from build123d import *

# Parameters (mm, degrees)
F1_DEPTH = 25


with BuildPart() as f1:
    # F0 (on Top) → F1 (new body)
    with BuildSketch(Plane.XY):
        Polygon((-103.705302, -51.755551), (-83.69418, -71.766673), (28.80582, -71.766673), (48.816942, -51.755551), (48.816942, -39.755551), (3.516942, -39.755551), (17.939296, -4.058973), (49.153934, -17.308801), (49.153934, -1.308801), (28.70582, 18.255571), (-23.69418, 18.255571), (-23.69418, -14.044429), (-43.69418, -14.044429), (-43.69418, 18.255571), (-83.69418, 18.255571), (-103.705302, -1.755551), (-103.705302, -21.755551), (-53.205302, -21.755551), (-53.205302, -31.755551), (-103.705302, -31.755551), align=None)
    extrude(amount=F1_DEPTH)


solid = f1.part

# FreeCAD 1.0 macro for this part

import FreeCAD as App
import Part
import Sketcher
Q = App.Units.Quantity


def add_polygon(sketch, points):
    """Adds a closed chain of lines whose ends are joined by coincident constraints."""
    first, n = sketch.GeometryCount, len(points)
    for a, b in zip(points, points[1:] + points[:1]):
        sketch.addGeometry(Part.LineSegment(App.Vector(*a, 0), App.Vector(*b, 0)), False)
    for i in range(n):
        sketch.addConstraint(Sketcher.Constraint("Coincident", first + i, 2, first + (i + 1) % n, 1))

doc = App.newDocument("Part")
params = doc.addObject("Spreadsheet::Sheet", "Params")
for row, (alias, value) in enumerate([
    ("sketch1_width", "20 mm"),
    ("sketch1_width2", "40 mm"),
    ("sketch1_height", "12 mm"),
    ("sketch1_height2", "16 mm"),
    ("sketch1_height3", "10 mm"),
    ("pad1_length", "25 mm"),
], start=1):
    params.set(f"A{row}", alias)
    params.set(f"B{row}", "=" + value)
    params.setAlias(f"B{row}", alias)

body = doc.addObject("PartDesign::Body", "Body")

# Sketch on XY plane
sketch1 = body.newObject("Sketcher::SketchObject", "Sketch")
sketch1.AttachmentSupport = (doc.getObject("XY_Plane"), [""])
sketch1.MapMode = "FlatFace"
add_polygon(sketch1, [(-104, -52), (-84, -72), (29, -72), (49, -52), (49, -40), (4, -40), (18, -4), (49, -17), (49, -1), (29, 18), (-24, 18), (-24, -14), (-44, -14), (-44, 18), (-84, 18), (-104, -2), (-104, -22), (-53, -22), (-53, -32), (-104, -32)])  # lines 0-19
sketch1.addConstraint([
    Sketcher.Constraint("Horizontal", 1),
    Sketcher.Constraint("Vertical", 3),
    Sketcher.Constraint("Horizontal", 4),
    Sketcher.Constraint("Vertical", 7),
    Sketcher.Constraint("Horizontal", 9),
    Sketcher.Constraint("Vertical", 10),
    Sketcher.Constraint("Horizontal", 11),
    Sketcher.Constraint("Vertical", 12),
    Sketcher.Constraint("Horizontal", 13),
    Sketcher.Constraint("Vertical", 15),
    Sketcher.Constraint("Horizontal", 16),
    Sketcher.Constraint("Vertical", 17),
    Sketcher.Constraint("Horizontal", 18),
    Sketcher.Constraint("Vertical", 19),
    Sketcher.Constraint("Perpendicular", 0, 2),
    Sketcher.Constraint("Parallel", 2, 14),
    Sketcher.Constraint("Horizontal", 9, 2, 12, 2),
    Sketcher.Constraint("Horizontal", 2, 2, 19, 2),
    Sketcher.Constraint("Vertical", 0, 2, 13, 2),
    Sketcher.Constraint("Vertical", 15, 2, 18, 2),
    Sketcher.Constraint("Equal", 11, 15),
    Sketcher.Constraint("Equal", 15, 19),
    Sketcher.Constraint("Equal", 0, 2),
    Sketcher.Constraint("Equal", 2, 8),
    Sketcher.Constraint("DistanceX", 11, 2, 11, 1, Q("20 mm")),
    Sketcher.Constraint("DistanceX", 13, 2, 13, 1, Q("40 mm")),
    Sketcher.Constraint("DistanceY", 3, 1, 3, 2, Q("12 mm")),
    Sketcher.Constraint("DistanceY", 7, 1, 7, 2, Q("16 mm")),
    Sketcher.Constraint("DistanceY", 17, 2, 17, 1, Q("10 mm")),
    Sketcher.Constraint("Angle", 5, Q("68 deg")),
    Sketcher.Constraint("Angle", 6, Q("-23 deg")),
    Sketcher.Constraint("DistanceX", 1, 1, 1, 2, Q("112.5 mm")),
    Sketcher.Constraint("DistanceX", 4, 2, 4, 1, Q("45.3 mm")),
    Sketcher.Constraint("DistanceX", 9, 2, 9, 1, Q("52.4 mm")),
    Sketcher.Constraint("DistanceX", 16, 1, 16, 2, Q("50.5 mm")),
    Sketcher.Constraint("DistanceY", 10, 2, 10, 1, Q("32.3 mm")),
    Sketcher.Constraint("Distance", 0, Q("28.3 mm")),
    Sketcher.Constraint("Distance", 5, Q("38.5 mm")),
    Sketcher.Constraint("DistanceY", 6, 2, -1, 1, Q("17.308801 mm")),
    Sketcher.Constraint("DistanceX", 0, 2, -1, 1, Q("83.69418 mm")),
])
sketch1.setExpression("Constraints[44]", "Params.sketch1_width")
sketch1.setExpression("Constraints[45]", "Params.sketch1_width2")
sketch1.setExpression("Constraints[46]", "Params.sketch1_height")
sketch1.setExpression("Constraints[47]", "Params.sketch1_height2")
sketch1.setExpression("Constraints[48]", "Params.sketch1_height3")
pad1 = body.newObject("PartDesign::Pad", "Pad")
pad1.Profile = sketch1
pad1.setExpression("Length", "Params.pad1_length")

doc.recompute()
